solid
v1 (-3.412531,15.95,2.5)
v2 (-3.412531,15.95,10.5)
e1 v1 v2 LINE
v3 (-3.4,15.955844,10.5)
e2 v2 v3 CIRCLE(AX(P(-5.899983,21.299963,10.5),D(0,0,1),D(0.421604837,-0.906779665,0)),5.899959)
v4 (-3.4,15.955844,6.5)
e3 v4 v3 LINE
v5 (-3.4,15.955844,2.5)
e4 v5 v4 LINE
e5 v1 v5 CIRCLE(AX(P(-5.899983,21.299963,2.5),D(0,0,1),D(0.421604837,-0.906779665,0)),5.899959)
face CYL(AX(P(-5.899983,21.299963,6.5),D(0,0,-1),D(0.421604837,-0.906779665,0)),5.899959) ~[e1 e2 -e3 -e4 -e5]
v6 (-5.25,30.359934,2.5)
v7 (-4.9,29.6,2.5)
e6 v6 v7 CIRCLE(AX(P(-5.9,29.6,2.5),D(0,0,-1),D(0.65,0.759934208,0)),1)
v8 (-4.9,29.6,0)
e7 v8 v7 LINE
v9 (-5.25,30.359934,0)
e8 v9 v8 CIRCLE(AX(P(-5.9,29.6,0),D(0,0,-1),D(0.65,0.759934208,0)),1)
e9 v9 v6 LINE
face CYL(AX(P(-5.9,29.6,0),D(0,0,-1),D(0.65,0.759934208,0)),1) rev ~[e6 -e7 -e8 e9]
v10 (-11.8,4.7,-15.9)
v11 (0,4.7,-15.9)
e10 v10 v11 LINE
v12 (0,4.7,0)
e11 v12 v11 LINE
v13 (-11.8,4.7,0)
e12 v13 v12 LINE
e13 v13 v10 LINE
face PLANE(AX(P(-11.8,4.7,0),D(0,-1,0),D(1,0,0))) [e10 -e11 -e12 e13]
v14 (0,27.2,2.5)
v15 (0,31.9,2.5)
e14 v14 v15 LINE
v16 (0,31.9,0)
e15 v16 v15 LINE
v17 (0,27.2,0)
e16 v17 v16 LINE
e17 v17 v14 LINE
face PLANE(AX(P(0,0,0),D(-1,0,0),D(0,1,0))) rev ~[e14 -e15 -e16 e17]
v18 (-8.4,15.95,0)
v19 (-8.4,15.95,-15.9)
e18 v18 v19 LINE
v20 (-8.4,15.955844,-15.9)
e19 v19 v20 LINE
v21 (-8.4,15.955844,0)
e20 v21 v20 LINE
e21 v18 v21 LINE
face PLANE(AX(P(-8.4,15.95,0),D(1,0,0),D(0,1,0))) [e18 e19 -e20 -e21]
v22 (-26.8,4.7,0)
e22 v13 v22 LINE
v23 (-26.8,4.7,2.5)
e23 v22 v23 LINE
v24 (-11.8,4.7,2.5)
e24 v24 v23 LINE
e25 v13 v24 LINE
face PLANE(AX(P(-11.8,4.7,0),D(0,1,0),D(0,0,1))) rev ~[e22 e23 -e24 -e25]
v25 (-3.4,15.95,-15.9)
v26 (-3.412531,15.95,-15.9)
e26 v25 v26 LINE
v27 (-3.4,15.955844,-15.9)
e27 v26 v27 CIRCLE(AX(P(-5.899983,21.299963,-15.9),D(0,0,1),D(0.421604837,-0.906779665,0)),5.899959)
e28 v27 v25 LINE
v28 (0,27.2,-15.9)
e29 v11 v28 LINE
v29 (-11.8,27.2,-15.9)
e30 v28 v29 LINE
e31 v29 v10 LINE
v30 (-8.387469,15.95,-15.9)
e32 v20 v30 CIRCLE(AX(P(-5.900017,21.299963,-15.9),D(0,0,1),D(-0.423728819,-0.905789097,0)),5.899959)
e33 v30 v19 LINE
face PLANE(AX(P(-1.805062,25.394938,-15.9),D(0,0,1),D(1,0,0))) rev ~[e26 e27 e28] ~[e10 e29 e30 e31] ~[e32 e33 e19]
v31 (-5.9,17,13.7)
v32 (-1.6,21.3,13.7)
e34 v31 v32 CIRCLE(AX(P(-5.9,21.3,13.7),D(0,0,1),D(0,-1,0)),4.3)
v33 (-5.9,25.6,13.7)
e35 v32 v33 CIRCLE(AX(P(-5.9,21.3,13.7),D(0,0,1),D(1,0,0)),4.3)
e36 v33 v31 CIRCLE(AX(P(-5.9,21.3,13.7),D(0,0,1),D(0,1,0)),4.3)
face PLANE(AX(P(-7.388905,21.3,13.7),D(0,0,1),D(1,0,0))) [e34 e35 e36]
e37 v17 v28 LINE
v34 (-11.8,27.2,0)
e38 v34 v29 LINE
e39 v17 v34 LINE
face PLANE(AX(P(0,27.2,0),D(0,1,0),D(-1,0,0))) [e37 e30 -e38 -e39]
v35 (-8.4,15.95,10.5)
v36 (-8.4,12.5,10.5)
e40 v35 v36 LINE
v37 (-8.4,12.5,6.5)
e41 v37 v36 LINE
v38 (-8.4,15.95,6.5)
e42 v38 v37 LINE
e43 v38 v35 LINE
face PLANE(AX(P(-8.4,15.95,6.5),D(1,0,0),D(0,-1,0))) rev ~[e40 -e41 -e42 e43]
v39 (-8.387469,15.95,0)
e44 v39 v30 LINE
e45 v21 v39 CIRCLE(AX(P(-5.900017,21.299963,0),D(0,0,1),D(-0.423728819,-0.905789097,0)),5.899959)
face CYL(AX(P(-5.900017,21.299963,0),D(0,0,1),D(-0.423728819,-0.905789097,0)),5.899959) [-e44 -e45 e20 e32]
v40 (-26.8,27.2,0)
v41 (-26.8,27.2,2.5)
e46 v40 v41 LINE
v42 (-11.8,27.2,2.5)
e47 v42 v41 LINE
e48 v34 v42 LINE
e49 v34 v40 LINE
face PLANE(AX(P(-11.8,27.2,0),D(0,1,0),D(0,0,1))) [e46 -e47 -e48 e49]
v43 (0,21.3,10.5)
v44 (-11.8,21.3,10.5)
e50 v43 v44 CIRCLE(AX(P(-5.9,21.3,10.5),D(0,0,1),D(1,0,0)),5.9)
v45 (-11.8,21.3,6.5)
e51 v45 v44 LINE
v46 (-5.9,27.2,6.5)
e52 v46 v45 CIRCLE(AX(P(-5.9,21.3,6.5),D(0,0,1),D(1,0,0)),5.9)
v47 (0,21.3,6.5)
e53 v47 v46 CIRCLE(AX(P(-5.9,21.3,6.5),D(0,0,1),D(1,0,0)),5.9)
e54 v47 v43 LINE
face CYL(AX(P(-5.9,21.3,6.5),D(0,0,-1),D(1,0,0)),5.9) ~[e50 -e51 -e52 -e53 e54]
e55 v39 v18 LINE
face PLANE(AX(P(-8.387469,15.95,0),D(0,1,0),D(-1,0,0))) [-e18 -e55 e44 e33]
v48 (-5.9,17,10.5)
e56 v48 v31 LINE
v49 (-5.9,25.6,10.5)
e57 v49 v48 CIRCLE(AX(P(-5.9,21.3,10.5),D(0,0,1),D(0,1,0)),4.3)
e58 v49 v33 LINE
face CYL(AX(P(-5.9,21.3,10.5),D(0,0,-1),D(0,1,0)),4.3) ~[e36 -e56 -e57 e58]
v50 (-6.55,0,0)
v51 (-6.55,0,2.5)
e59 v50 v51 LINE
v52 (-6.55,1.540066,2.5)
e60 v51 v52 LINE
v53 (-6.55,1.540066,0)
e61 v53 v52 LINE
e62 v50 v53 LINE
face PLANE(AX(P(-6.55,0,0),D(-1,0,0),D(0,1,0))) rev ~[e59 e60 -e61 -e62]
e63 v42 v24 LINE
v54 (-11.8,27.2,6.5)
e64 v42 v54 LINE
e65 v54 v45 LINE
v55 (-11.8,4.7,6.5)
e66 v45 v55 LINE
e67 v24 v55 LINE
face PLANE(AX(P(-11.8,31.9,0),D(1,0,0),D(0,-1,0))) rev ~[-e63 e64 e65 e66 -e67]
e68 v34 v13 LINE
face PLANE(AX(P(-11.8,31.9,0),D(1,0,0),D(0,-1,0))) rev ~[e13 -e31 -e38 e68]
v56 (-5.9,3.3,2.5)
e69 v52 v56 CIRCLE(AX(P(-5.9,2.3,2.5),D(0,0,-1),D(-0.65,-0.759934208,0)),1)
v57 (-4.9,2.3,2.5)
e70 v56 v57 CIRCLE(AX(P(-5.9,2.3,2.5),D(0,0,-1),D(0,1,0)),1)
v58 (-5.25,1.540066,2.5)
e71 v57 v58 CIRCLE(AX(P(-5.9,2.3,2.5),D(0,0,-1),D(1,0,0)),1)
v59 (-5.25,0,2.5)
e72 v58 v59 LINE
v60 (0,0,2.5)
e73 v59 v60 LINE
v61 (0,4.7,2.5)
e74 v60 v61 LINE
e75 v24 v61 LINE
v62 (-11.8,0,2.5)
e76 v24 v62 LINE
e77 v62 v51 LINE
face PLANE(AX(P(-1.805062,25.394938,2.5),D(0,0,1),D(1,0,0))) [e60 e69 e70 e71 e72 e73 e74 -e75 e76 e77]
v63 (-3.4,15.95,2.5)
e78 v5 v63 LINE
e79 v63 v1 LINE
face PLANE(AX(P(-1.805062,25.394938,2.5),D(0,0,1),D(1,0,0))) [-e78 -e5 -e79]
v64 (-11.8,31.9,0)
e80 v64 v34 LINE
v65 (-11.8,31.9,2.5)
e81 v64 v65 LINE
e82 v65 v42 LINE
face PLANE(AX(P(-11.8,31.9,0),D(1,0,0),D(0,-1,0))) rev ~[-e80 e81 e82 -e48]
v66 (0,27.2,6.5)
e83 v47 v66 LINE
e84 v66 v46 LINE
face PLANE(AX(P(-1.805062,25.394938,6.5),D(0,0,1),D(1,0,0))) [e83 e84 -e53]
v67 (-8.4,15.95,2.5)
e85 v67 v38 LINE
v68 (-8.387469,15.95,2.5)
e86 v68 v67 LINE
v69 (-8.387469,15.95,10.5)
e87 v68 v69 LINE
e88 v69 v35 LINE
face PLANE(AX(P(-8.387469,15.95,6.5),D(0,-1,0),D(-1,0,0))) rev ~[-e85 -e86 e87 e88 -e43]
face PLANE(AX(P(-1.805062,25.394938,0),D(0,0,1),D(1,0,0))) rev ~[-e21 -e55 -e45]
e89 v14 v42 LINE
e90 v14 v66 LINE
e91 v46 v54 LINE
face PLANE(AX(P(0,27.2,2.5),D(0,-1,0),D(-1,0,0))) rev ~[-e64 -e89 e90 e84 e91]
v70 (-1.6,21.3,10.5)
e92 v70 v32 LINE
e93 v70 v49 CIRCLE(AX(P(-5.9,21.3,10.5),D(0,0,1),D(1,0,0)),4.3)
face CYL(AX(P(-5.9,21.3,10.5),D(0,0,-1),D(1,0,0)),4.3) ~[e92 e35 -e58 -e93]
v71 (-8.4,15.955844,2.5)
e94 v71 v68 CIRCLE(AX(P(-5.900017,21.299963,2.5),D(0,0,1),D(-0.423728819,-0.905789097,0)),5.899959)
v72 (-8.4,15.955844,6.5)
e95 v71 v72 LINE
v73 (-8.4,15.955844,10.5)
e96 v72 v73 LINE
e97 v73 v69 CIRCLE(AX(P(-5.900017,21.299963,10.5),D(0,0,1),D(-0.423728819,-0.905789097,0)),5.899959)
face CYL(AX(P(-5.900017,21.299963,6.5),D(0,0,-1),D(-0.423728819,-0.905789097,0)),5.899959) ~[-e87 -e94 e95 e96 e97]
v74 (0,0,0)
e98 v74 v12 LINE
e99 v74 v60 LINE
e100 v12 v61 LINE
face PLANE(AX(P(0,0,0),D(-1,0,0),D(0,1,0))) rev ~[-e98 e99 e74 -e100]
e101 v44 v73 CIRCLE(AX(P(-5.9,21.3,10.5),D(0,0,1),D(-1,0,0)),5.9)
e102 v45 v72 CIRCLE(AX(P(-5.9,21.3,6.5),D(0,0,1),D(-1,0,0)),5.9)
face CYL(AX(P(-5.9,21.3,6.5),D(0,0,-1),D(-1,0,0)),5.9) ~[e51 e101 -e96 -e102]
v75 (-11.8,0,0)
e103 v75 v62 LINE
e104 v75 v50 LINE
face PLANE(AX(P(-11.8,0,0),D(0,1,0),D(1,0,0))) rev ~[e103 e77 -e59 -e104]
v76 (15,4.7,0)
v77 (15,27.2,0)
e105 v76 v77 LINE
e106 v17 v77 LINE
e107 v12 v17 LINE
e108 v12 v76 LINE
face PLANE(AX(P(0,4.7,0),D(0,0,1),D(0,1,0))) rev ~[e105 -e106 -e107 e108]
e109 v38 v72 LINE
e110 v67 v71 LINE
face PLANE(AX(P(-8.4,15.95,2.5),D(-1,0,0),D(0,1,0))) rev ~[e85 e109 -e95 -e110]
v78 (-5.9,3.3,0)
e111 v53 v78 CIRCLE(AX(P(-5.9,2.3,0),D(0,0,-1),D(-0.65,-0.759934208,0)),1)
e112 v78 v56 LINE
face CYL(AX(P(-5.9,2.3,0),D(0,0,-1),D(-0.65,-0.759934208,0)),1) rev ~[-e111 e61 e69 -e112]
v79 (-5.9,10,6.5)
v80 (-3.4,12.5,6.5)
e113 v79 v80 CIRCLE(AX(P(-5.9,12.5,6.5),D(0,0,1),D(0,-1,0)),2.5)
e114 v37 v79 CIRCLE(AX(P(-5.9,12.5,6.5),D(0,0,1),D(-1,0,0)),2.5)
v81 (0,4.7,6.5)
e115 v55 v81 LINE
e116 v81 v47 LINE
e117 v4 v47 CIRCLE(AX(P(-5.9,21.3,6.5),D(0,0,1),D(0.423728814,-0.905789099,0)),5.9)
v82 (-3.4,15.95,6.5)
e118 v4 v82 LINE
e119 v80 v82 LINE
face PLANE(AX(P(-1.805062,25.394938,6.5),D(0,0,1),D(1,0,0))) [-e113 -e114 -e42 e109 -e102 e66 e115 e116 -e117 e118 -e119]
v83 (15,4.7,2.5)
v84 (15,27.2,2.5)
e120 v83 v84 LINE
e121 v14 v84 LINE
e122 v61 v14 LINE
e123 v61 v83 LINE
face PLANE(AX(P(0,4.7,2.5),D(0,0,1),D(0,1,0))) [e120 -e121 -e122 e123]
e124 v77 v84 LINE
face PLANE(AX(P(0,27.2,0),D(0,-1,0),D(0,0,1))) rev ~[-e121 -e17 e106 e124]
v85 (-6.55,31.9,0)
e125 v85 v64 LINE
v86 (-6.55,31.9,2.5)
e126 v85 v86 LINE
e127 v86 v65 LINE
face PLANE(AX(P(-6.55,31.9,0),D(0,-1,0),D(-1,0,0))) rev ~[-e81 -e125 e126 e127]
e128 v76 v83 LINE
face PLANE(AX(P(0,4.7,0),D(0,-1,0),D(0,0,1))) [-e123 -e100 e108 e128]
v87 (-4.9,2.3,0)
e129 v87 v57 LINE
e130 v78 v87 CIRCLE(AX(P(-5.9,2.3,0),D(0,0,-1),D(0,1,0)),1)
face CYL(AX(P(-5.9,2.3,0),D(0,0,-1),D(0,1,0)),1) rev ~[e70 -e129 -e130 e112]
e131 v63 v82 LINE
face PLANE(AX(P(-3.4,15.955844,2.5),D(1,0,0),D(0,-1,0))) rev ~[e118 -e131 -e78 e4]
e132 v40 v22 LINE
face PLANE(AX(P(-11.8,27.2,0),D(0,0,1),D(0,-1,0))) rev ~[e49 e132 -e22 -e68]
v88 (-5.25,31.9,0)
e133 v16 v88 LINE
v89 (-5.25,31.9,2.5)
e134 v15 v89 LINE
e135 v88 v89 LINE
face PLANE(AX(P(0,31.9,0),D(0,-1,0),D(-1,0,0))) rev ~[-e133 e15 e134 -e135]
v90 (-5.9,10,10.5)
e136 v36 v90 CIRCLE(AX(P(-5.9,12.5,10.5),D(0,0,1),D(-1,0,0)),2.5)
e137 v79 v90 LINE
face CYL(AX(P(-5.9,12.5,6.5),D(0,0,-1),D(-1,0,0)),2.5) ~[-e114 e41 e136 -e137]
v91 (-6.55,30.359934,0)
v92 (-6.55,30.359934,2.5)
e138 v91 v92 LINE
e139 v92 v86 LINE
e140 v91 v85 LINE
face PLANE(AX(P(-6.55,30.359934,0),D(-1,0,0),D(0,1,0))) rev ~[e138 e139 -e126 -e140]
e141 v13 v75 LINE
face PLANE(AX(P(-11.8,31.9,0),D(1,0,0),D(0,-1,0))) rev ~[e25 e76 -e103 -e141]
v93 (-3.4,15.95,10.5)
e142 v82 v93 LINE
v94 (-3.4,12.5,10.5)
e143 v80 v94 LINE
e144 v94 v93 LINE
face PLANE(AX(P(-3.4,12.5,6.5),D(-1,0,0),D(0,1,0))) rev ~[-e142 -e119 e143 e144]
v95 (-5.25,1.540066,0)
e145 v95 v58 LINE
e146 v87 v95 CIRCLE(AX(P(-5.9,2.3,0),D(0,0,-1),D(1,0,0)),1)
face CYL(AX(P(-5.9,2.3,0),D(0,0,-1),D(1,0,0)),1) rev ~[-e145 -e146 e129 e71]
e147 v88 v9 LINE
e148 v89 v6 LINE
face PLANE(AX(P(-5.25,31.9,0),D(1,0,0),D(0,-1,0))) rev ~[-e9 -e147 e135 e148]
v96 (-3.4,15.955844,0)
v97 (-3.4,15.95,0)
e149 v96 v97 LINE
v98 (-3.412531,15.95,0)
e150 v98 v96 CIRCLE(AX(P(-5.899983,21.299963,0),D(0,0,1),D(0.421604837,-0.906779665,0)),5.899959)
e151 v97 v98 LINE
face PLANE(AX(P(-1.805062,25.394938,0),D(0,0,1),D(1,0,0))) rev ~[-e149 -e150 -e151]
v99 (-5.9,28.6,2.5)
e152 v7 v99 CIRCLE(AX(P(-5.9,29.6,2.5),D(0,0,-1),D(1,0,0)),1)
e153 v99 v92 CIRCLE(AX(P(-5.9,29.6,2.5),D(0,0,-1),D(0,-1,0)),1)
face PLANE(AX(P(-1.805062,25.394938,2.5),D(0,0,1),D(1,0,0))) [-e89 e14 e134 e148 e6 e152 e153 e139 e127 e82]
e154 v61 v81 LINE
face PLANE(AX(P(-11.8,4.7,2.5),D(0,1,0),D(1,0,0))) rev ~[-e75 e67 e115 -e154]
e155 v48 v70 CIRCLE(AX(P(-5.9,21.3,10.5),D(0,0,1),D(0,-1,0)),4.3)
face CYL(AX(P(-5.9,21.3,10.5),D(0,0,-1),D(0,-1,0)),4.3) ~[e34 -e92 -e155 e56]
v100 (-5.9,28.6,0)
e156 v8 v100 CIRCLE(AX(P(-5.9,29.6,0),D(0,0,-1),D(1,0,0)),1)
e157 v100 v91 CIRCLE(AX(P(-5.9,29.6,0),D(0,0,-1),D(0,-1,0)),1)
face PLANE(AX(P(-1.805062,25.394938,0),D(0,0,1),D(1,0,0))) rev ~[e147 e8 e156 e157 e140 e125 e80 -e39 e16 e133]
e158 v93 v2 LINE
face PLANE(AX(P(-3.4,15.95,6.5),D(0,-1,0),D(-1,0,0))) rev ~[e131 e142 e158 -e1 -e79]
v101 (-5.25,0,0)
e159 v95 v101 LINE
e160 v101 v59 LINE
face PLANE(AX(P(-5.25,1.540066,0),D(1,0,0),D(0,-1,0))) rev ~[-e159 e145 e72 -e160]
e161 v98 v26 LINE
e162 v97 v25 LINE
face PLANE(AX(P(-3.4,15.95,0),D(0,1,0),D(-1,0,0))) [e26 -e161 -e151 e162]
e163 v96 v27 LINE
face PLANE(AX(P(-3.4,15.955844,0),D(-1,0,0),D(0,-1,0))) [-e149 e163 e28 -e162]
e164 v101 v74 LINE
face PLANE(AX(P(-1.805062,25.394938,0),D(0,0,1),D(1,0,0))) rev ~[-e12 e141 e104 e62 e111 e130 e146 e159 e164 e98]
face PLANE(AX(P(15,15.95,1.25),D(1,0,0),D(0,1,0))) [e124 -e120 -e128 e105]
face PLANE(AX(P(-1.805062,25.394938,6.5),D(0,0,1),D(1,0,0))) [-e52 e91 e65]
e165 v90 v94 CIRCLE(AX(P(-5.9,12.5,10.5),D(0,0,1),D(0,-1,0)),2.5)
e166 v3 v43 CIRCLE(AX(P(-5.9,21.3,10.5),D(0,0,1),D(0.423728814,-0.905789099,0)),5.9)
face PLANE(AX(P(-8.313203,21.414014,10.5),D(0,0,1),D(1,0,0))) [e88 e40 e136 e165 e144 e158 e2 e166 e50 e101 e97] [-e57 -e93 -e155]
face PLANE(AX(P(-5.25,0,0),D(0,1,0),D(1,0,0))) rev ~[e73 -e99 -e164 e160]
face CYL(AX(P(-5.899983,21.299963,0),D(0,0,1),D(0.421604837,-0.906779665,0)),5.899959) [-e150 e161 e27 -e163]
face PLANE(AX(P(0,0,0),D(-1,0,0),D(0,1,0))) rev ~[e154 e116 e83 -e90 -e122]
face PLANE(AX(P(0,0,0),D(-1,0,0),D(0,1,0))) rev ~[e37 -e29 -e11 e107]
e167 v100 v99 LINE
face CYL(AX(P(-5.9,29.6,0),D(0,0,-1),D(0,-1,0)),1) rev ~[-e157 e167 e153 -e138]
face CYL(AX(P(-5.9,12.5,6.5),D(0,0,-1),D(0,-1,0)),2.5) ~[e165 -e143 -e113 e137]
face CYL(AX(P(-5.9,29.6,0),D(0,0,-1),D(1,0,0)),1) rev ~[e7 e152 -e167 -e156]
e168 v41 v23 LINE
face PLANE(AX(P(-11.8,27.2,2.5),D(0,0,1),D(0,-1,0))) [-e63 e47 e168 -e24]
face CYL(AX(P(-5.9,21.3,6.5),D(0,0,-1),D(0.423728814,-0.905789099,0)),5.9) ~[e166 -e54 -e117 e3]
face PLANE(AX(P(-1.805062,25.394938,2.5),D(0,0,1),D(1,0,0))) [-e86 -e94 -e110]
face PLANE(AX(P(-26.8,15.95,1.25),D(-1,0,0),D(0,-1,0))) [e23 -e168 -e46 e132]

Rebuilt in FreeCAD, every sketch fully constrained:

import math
import FreeCAD as App
import Part
import Sketcher


def add_polygon(sketch, points):
    """Adds a closed chain of lines whose ends are joined by coincident constraints."""
    first, n = sketch.GeometryCount, len(points)
    for a, b in zip(points, points[1:] + points[:1]):
        sketch.addGeometry(Part.LineSegment(App.Vector(*a, 0), App.Vector(*b, 0)), False)
    for i in range(n):
        sketch.addConstraint(Sketcher.Constraint("Coincident", first + i, 2, first + (i + 1) % n, 1))

doc = App.newDocument("Part")
body = doc.addObject("PartDesign::Body", "Body")

sketch1 = body.newObject("Sketcher::SketchObject", "Sketch")
sketch1.AttachmentSupport = (doc.getObject("XY_Plane"), [""])
sketch1.MapMode = "FlatFace"
add_polygon(sketch1, [(-11.8, 4.7), (0, 4.7), (0, 27.2), (-11.8, 27.2)])
sketch1.addGeometry(Part.ArcOfCircle(Part.Circle(App.Vector(-5.900017, 21.299963, 0), App.Vector(0, 0, 1), 5.899959), math.radians(-115.070228), math.radians(-114.935949)), False)
sketch1.addGeometry(Part.LineSegment(App.Vector(-8.387469, 15.95, 0), App.Vector(-8.4, 15.95, 0)), False)
sketch1.addGeometry(Part.LineSegment(App.Vector(-8.4, 15.95, 0), App.Vector(-8.4, 15.955844, 0)), False)
sketch1.addGeometry(Part.LineSegment(App.Vector(-3.4, 15.95, 0), App.Vector(-3.412531, 15.95, 0)), False)
sketch1.addGeometry(Part.ArcOfCircle(Part.Circle(App.Vector(-5.899983, 21.299963, 0), App.Vector(0, 0, 1), 5.899959), math.radians(-65.064051), math.radians(-64.929772)), False)
sketch1.addGeometry(Part.LineSegment(App.Vector(-3.4, 15.955844, 0), App.Vector(-3.4, 15.95, 0)), False)
sketch1.addConstraint(Sketcher.Constraint("Coincident", 4, 2, 5, 1))
sketch1.addConstraint(Sketcher.Constraint("Coincident", 5, 2, 6, 1))
sketch1.addConstraint(Sketcher.Constraint("Coincident", 6, 2, 4, 1))
sketch1.addConstraint(Sketcher.Constraint("Coincident", 7, 2, 8, 1))
sketch1.addConstraint(Sketcher.Constraint("Coincident", 8, 2, 9, 1))
sketch1.addConstraint(Sketcher.Constraint("Coincident", 9, 2, 7, 1))
sketch1.addConstraint(Sketcher.Constraint("Horizontal", 0))
sketch1.addConstraint(Sketcher.Constraint("Vertical", 1))
sketch1.addConstraint(Sketcher.Constraint("Horizontal", 2))
sketch1.addConstraint(Sketcher.Constraint("Vertical", 3))
sketch1.addConstraint(Sketcher.Constraint("Horizontal", 5))
sketch1.addConstraint(Sketcher.Constraint("Vertical", 6))
sketch1.addConstraint(Sketcher.Constraint("Horizontal", 7))
sketch1.addConstraint(Sketcher.Constraint("Vertical", 9))
sketch1.addConstraint(Sketcher.Constraint("Equal", 4, 8))
sketch1.addConstraint(Sketcher.Constraint("PointOnObject", 0, 2, -2))
sketch1.addConstraint(Sketcher.Constraint("Horizontal", 4, 3, 8, 3))
sketch1.addConstraint(Sketcher.Constraint("Horizontal", 5, 2, 7, 2))
sketch1.addConstraint(Sketcher.Constraint("Horizontal", 6, 2, 8, 2))
sketch1.addConstraint(Sketcher.Constraint("DistanceX", 0, 1, 0, 2, 11.8))
sketch1.addConstraint(Sketcher.Constraint("DistanceY", 1, 1, 1, 2, 22.5))
sketch1.addConstraint(Sketcher.Constraint("DistanceX", 6, 2, 8, 2, 5.0))
sketch1.addConstraint(Sketcher.Constraint("DistanceY", -1, 1, 0, 2, 4.7))
sketch1.addConstraint(Sketcher.Constraint("DistanceX", 5, 2, -1, 1, 8.4))
sketch1.addConstraint(Sketcher.Constraint("DistanceY", -1, 1, 4, 2, 15.95))
sketch1.addConstraint(Sketcher.Constraint("Radius", 4, 5.899959))
sketch1.addConstraint(Sketcher.Constraint("DistanceX", 5, 2, 5, 1, 0.012531))
sketch1.addConstraint(Sketcher.Constraint("DistanceX", 4, 2, 4, 3, 2.487451))
pad1 = body.newObject("PartDesign::Pad", "Pad")
pad1.Profile = sketch1
pad1.Length = 15.9
pad1.Reversed = True

sketch2 = body.newObject("Sketcher::SketchObject", "Sketch001")
sketch2.AttachmentSupport = (doc.getObject("XY_Plane"), [""])
sketch2.MapMode = "FlatFace"
sketch2.addGeometry(Part.LineSegment(App.Vector(-11.8, 31.9, 0), App.Vector(-11.8, 0, 0)), False)
sketch2.addGeometry(Part.LineSegment(App.Vector(-11.8, 0, 0), App.Vector(-6.55, 0, 0)), False)
sketch2.addGeometry(Part.LineSegment(App.Vector(-6.55, 0, 0), App.Vector(-6.55, 1.540066, 0)), False)
sketch2.addGeometry(Part.ArcOfCircle(Part.Circle(App.Vector(-5.9, 2.3, 0), App.Vector(0, 0, 1), 1), math.radians(90), math.radians(229.458398)), False)
sketch2.addGeometry(Part.ArcOfCircle(Part.Circle(App.Vector(-5.9, 2.3, 0), App.Vector(0, 0, 1), 1), math.radians(0), math.radians(90)), False)
sketch2.addGeometry(Part.ArcOfCircle(Part.Circle(App.Vector(-5.9, 2.3, 0), App.Vector(0, 0, 1), 1), math.radians(-49.458398), math.radians(0)), False)
sketch2.addGeometry(Part.LineSegment(App.Vector(-5.25, 1.540066, 0), App.Vector(-5.25, 0, 0)), False)
sketch2.addGeometry(Part.LineSegment(App.Vector(-5.25, 0, 0), App.Vector(0, 0, 0)), False)
sketch2.addGeometry(Part.LineSegment(App.Vector(0, 0, 0), App.Vector(0, 31.9, 0)), False)
sketch2.addGeometry(Part.LineSegment(App.Vector(0, 31.9, 0), App.Vector(-5.25, 31.9, 0)), False)
sketch2.addGeometry(Part.LineSegment(App.Vector(-5.25, 31.9, 0), App.Vector(-5.25, 30.359934, 0)), False)
sketch2.addGeometry(Part.ArcOfCircle(Part.Circle(App.Vector(-5.9, 29.6, 0), App.Vector(0, 0, 1), 1), math.radians(0), math.radians(49.458398)), False)
sketch2.addGeometry(Part.ArcOfCircle(Part.Circle(App.Vector(-5.9, 29.6, 0), App.Vector(0, 0, 1), 1), math.radians(-90), math.radians(0)), False)
sketch2.addGeometry(Part.ArcOfCircle(Part.Circle(App.Vector(-5.9, 29.6, 0), App.Vector(0, 0, 1), 1), math.radians(130.541602), math.radians(270)), False)
sketch2.addGeometry(Part.LineSegment(App.Vector(-6.55, 30.359934, 0), App.Vector(-6.55, 31.9, 0)), False)
sketch2.addGeometry(Part.LineSegment(App.Vector(-6.55, 31.9, 0), App.Vector(-11.8, 31.9, 0)), False)
sketch2.addConstraint(Sketcher.Constraint("Coincident", 0, 2, 1, 1))
sketch2.addConstraint(Sketcher.Constraint("Coincident", 1, 2, 2, 1))
sketch2.addConstraint(Sketcher.Constraint("Coincident", 2, 2, 3, 2))
sketch2.addConstraint(Sketcher.Constraint("Tangent", 3, 1, 4, 2))
sketch2.addConstraint(Sketcher.Constraint("Tangent", 4, 1, 5, 2))
sketch2.addConstraint(Sketcher.Constraint("Coincident", 5, 1, 6, 1))
sketch2.addConstraint(Sketcher.Constraint("Coincident", 6, 2, 7, 1))
sketch2.addConstraint(Sketcher.Constraint("Coincident", 7, 2, 8, 1))
sketch2.addConstraint(Sketcher.Constraint("Coincident", 8, 2, 9, 1))
sketch2.addConstraint(Sketcher.Constraint("Coincident", 9, 2, 10, 1))
sketch2.addConstraint(Sketcher.Constraint("Coincident", 10, 2, 11, 2))
sketch2.addConstraint(Sketcher.Constraint("Tangent", 11, 1, 12, 2))
sketch2.addConstraint(Sketcher.Constraint("Tangent", 12, 1, 13, 2))
sketch2.addConstraint(Sketcher.Constraint("Coincident", 13, 1, 14, 1))
sketch2.addConstraint(Sketcher.Constraint("Coincident", 14, 2, 15, 1))
sketch2.addConstraint(Sketcher.Constraint("Coincident", 15, 2, 0, 1))
sketch2.addConstraint(Sketcher.Constraint("Vertical", 0))
sketch2.addConstraint(Sketcher.Constraint("Horizontal", 1))
sketch2.addConstraint(Sketcher.Constraint("Vertical", 2))
sketch2.addConstraint(Sketcher.Constraint("Vertical", 6))
sketch2.addConstraint(Sketcher.Constraint("Horizontal", 7))
sketch2.addConstraint(Sketcher.Constraint("Vertical", 8))
sketch2.addConstraint(Sketcher.Constraint("Horizontal", 9))
sketch2.addConstraint(Sketcher.Constraint("Vertical", 10))
sketch2.addConstraint(Sketcher.Constraint("Vertical", 14))
sketch2.addConstraint(Sketcher.Constraint("Horizontal", 15))
sketch2.addConstraint(Sketcher.Constraint("Coincident", 7, 2, -1, 1))
sketch2.addConstraint(Sketcher.Constraint("Coincident", 5, 3, 3, 3))
sketch2.addConstraint(Sketcher.Constraint("Coincident", 13, 3, 11, 3))
sketch2.addConstraint(Sketcher.Constraint("Equal", 5, 11))
sketch2.addConstraint(Sketcher.Constraint("PointOnObject", 0, 2, -1))
sketch2.addConstraint(Sketcher.Constraint("Horizontal", 5, 3, 4, 1))
sketch2.addConstraint(Sketcher.Constraint("Horizontal", 2, 2, 5, 1))
sketch2.addConstraint(Sketcher.Constraint("Horizontal", 13, 3, 11, 1))
sketch2.addConstraint(Sketcher.Constraint("Horizontal", 10, 2, 13, 1))
sketch2.addConstraint(Sketcher.Constraint("Horizontal", 9, 2, 14, 2))
sketch2.addConstraint(Sketcher.Constraint("Vertical", 5, 3, 11, 3))
sketch2.addConstraint(Sketcher.Constraint("Vertical", 13, 3, 3, 1))
sketch2.addConstraint(Sketcher.Constraint("Vertical", 6, 2, 9, 2))
sketch2.addConstraint(Sketcher.Constraint("Vertical", 3, 1, 12, 1))
sketch2.addConstraint(Sketcher.Constraint("Equal", 1, 7))
sketch2.addConstraint(Sketcher.Constraint("Equal", 6, 10))
sketch2.addConstraint(Sketcher.Constraint("Radius", 3, 1.0))
sketch2.addConstraint(Sketcher.Constraint("DistanceY", 0, 2, 0, 1, 31.9))
sketch2.addConstraint(Sketcher.Constraint("DistanceX", 1, 1, 1, 2, 5.25))
sketch2.addConstraint(Sketcher.Constraint("DistanceX", 3, 3, -1, 1, 5.9))
sketch2.addConstraint(Sketcher.Constraint("DistanceY", -1, 1, 3, 3, 2.3))
pad2 = body.newObject("PartDesign::Pad", "Pad001")
pad2.Profile = sketch2
pad2.Length = 2.5

sketch3 = body.newObject("Sketcher::SketchObject", "Sketch002")
sketch3.AttachmentSupport = (doc.getObject("XY_Plane"), [""])
sketch3.MapMode = "FlatFace"
sketch3.AttachmentOffset = App.Placement(App.Vector(0, 0, 2.5), App.Rotation())
add_polygon(sketch3, [(0, 27.2), (-11.8, 27.2), (-11.8, 4.7), (0, 4.7)])
sketch3.addGeometry(Part.ArcOfCircle(Part.Circle(App.Vector(-5.900017, 21.299963, 0), App.Vector(0, 0, 1), 5.899959), math.radians(-115.070228), math.radians(-114.935949)), False)
sketch3.addGeometry(Part.LineSegment(App.Vector(-8.387469, 15.95, 0), App.Vector(-8.4, 15.95, 0)), False)
sketch3.addGeometry(Part.LineSegment(App.Vector(-8.4, 15.95, 0), App.Vector(-8.4, 15.955844, 0)), False)
sketch3.addGeometry(Part.LineSegment(App.Vector(-3.4, 15.95, 0), App.Vector(-3.412531, 15.95, 0)), False)
sketch3.addGeometry(Part.ArcOfCircle(Part.Circle(App.Vector(-5.899983, 21.299963, 0), App.Vector(0, 0, 1), 5.899959), math.radians(-65.064051), math.radians(-64.929772)), False)
sketch3.addGeometry(Part.LineSegment(App.Vector(-3.4, 15.955844, 0), App.Vector(-3.4, 15.95, 0)), False)
sketch3.addConstraint(Sketcher.Constraint("Coincident", 4, 2, 5, 1))
sketch3.addConstraint(Sketcher.Constraint("Coincident", 5, 2, 6, 1))
sketch3.addConstraint(Sketcher.Constraint("Coincident", 6, 2, 4, 1))
sketch3.addConstraint(Sketcher.Constraint("Coincident", 7, 2, 8, 1))
sketch3.addConstraint(Sketcher.Constraint("Coincident", 8, 2, 9, 1))
sketch3.addConstraint(Sketcher.Constraint("Coincident", 9, 2, 7, 1))
sketch3.addConstraint(Sketcher.Constraint("Horizontal", 0))
sketch3.addConstraint(Sketcher.Constraint("Vertical", 1))
sketch3.addConstraint(Sketcher.Constraint("Horizontal", 2))
sketch3.addConstraint(Sketcher.Constraint("Vertical", 3))
sketch3.addConstraint(Sketcher.Constraint("Horizontal", 5))
sketch3.addConstraint(Sketcher.Constraint("Vertical", 6))
sketch3.addConstraint(Sketcher.Constraint("Horizontal", 7))
sketch3.addConstraint(Sketcher.Constraint("Vertical", 9))
sketch3.addConstraint(Sketcher.Constraint("Equal", 4, 8))
sketch3.addConstraint(Sketcher.Constraint("PointOnObject", 2, 2, -2))
sketch3.addConstraint(Sketcher.Constraint("Horizontal", 4, 3, 8, 3))
sketch3.addConstraint(Sketcher.Constraint("Horizontal", 5, 2, 7, 2))
sketch3.addConstraint(Sketcher.Constraint("Horizontal", 6, 2, 8, 2))
sketch3.addConstraint(Sketcher.Constraint("DistanceX", 0, 2, 0, 1, 11.8))
sketch3.addConstraint(Sketcher.Constraint("DistanceY", 1, 2, 1, 1, 22.5))
sketch3.addConstraint(Sketcher.Constraint("DistanceX", 6, 2, 8, 2, 5.0))
sketch3.addConstraint(Sketcher.Constraint("DistanceY", -1, 1, 0, 2, 27.2))
sketch3.addConstraint(Sketcher.Constraint("DistanceX", 5, 2, -1, 1, 8.4))
sketch3.addConstraint(Sketcher.Constraint("DistanceY", -1, 1, 4, 2, 15.95))
sketch3.addConstraint(Sketcher.Constraint("Radius", 4, 5.899959))
sketch3.addConstraint(Sketcher.Constraint("DistanceX", 5, 2, 5, 1, 0.012531))
sketch3.addConstraint(Sketcher.Constraint("DistanceX", 4, 2, 4, 3, 2.487451))
pad3 = body.newObject("PartDesign::Pad", "Pad002")
pad3.Profile = sketch3
pad3.Length = 4

sketch4 = body.newObject("Sketcher::SketchObject", "Sketch003")
sketch4.AttachmentSupport = (doc.getObject("XY_Plane"), [""])
sketch4.MapMode = "FlatFace"
sketch4.AttachmentOffset = App.Placement(App.Vector(0, 0, 6.5), App.Rotation())
sketch4.addGeometry(Part.ArcOfCircle(Part.Circle(App.Vector(-5.9, 21.3, 0), App.Vector(0, 0, 1), 5.9), math.radians(180), math.radians(244.929772)), False)
sketch4.addGeometry(Part.ArcOfCircle(Part.Circle(App.Vector(-5.900017, 21.299963, 0), App.Vector(0, 0, 1), 5.899959), math.radians(-115.070228), math.radians(-114.935949)), False)
sketch4.addGeometry(Part.LineSegment(App.Vector(-8.387469, 15.95, 0), App.Vector(-8.4, 15.95, 0)), False)
sketch4.addGeometry(Part.LineSegment(App.Vector(-8.4, 15.95, 0), App.Vector(-8.4, 12.5, 0)), False)
sketch4.addGeometry(Part.ArcOfCircle(Part.Circle(App.Vector(-5.9, 12.5, 0), App.Vector(0, 0, 1), 2.5), math.radians(180), math.radians(270)), False)
sketch4.addGeometry(Part.ArcOfCircle(Part.Circle(App.Vector(-5.9, 12.5, 0), App.Vector(0, 0, 1), 2.5), math.radians(-90), math.radians(0)), False)
sketch4.addGeometry(Part.LineSegment(App.Vector(-3.4, 12.5, 0), App.Vector(-3.4, 15.95, 0)), False)
sketch4.addGeometry(Part.LineSegment(App.Vector(-3.4, 15.95, 0), App.Vector(-3.412531, 15.95, 0)), False)
sketch4.addGeometry(Part.ArcOfCircle(Part.Circle(App.Vector(-5.899983, 21.299963, 0), App.Vector(0, 0, 1), 5.899959), math.radians(-65.064051), math.radians(-64.929772)), False)
sketch4.addGeometry(Part.ArcOfCircle(Part.Circle(App.Vector(-5.9, 21.3, 0), App.Vector(0, 0, 1), 5.9), math.radians(-64.929772), math.radians(0)), False)
sketch4.addGeometry(Part.ArcOfCircle(Part.Circle(App.Vector(-5.9, 21.3, 0), App.Vector(0, 0, 1), 5.9), math.radians(0), math.radians(180)), False)
sketch4.addConstraint(Sketcher.Constraint("Tangent", 0, 2, 1, 1))
sketch4.addConstraint(Sketcher.Constraint("Coincident", 1, 2, 2, 1))
sketch4.addConstraint(Sketcher.Constraint("Coincident", 2, 2, 3, 1))
sketch4.addConstraint(Sketcher.Constraint("Tangent", 3, 2, 4, 1))
sketch4.addConstraint(Sketcher.Constraint("Tangent", 4, 2, 5, 1))
sketch4.addConstraint(Sketcher.Constraint("Tangent", 5, 2, 6, 1))
sketch4.addConstraint(Sketcher.Constraint("Coincident", 6, 2, 7, 1))
sketch4.addConstraint(Sketcher.Constraint("Coincident", 7, 2, 8, 1))
sketch4.addConstraint(Sketcher.Constraint("Tangent", 8, 2, 9, 1))
sketch4.addConstraint(Sketcher.Constraint("Tangent", 9, 2, 10, 1))
sketch4.addConstraint(Sketcher.Constraint("Tangent", 10, 2, 0, 1))
sketch4.addConstraint(Sketcher.Constraint("Horizontal", 2))
sketch4.addConstraint(Sketcher.Constraint("Vertical", 3))
sketch4.addConstraint(Sketcher.Constraint("Vertical", 6))
sketch4.addConstraint(Sketcher.Constraint("Horizontal", 7))
sketch4.addConstraint(Sketcher.Constraint("Equal", 4, 5))
sketch4.addConstraint(Sketcher.Constraint("Equal", 1, 8))
sketch4.addConstraint(Sketcher.Constraint("Equal", 0, 9))
sketch4.addConstraint(Sketcher.Constraint("Equal", 9, 10))
sketch4.addConstraint(Sketcher.Constraint("PointOnObject", 9, 2, -2))
sketch4.addConstraint(Sketcher.Constraint("Horizontal", 2, 2, 6, 2))
sketch4.addConstraint(Sketcher.Constraint("Horizontal", 0, 2, 8, 2))
sketch4.addConstraint(Sketcher.Constraint("Horizontal", 10, 3, 9, 2))
sketch4.addConstraint(Sketcher.Constraint("Horizontal", 9, 2, 10, 2))
sketch4.addConstraint(Sketcher.Constraint("Vertical", 0, 3, 4, 3))
sketch4.addConstraint(Sketcher.Constraint("Vertical", 0, 2, 2, 2))
sketch4.addConstraint(Sketcher.Constraint("Vertical", 10, 3, 4, 2))
sketch4.addConstraint(Sketcher.Constraint("Radius", 0, 5.9))
sketch4.addConstraint(Sketcher.Constraint("Radius", 4, 2.5))
sketch4.addConstraint(Sketcher.Constraint("DistanceY", -1, 1, 4, 2, 10.0))
sketch4.addConstraint(Sketcher.Constraint("DistanceY", 3, 2, 3, 1, 3.45))
sketch4.addConstraint(Sketcher.Constraint("DistanceY", -1, 1, 0, 3, 21.3))
sketch4.addConstraint(Sketcher.Constraint("Radius", 1, 5.899959))
pad4 = body.newObject("PartDesign::Pad", "Pad003")
pad4.Profile = sketch4
pad4.Length = 4

sketch5 = body.newObject("Sketcher::SketchObject", "Sketch004")
sketch5.AttachmentSupport = (doc.getObject("XY_Plane"), [""])
sketch5.MapMode = "FlatFace"
sketch5.AttachmentOffset = App.Placement(App.Vector(0, 0, 10.5), App.Rotation())
sketch5.addGeometry(Part.ArcOfCircle(Part.Circle(App.Vector(-5.9, 21.3, 0), App.Vector(0, 0, 1), 4.3), math.radians(90), math.radians(270)), False)
sketch5.addGeometry(Part.ArcOfCircle(Part.Circle(App.Vector(-5.9, 21.3, 0), App.Vector(0, 0, 1), 4.3), math.radians(-90), math.radians(0)), False)
sketch5.addGeometry(Part.ArcOfCircle(Part.Circle(App.Vector(-5.9, 21.3, 0), App.Vector(0, 0, 1), 4.3), math.radians(0), math.radians(90)), False)
sketch5.addConstraint(Sketcher.Constraint("Tangent", 0, 2, 1, 1))
sketch5.addConstraint(Sketcher.Constraint("Tangent", 1, 2, 2, 1))
sketch5.addConstraint(Sketcher.Constraint("Tangent", 2, 2, 0, 1))
sketch5.addConstraint(Sketcher.Constraint("Horizontal", 2, 3, 1, 2))
sketch5.addConstraint(Sketcher.Constraint("Vertical", 2, 3, 0, 2))
sketch5.addConstraint(Sketcher.Constraint("Vertical", 0, 2, 2, 2))
sketch5.addConstraint(Sketcher.Constraint("Radius", 0, 4.3))
sketch5.addConstraint(Sketcher.Constraint("DistanceY", -1, 1, 0, 2, 17.0))
sketch5.addConstraint(Sketcher.Constraint("DistanceX", 0, 3, -1, 1, 5.9))
pad5 = body.newObject("PartDesign::Pad", "Pad004")
pad5.Profile = sketch5
pad5.Length = 3.2

sketch6 = body.newObject("Sketcher::SketchObject", "Sketch005")
sketch6.AttachmentSupport = (doc.getObject("YZ_Plane"), [""])
sketch6.MapMode = "FlatFace"
add_polygon(sketch6, [(4.7, 2.5), (4.7, 0), (27.2, 0), (27.2, 2.5)])
sketch6.addConstraint(Sketcher.Constraint("Vertical", 0))
sketch6.addConstraint(Sketcher.Constraint("Horizontal", 1))
sketch6.addConstraint(Sketcher.Constraint("Vertical", 2))
sketch6.addConstraint(Sketcher.Constraint("Horizontal", 3))
sketch6.addConstraint(Sketcher.Constraint("PointOnObject", 0, 2, -1))
sketch6.addConstraint(Sketcher.Constraint("DistanceX", 1, 1, 1, 2, 22.5))
sketch6.addConstraint(Sketcher.Constraint("DistanceY", 0, 2, 0, 1, 2.5))
sketch6.addConstraint(Sketcher.Constraint("DistanceX", -1, 1, 0, 2, 4.7))
pad6 = body.newObject("PartDesign::Pad", "Pad005")
pad6.Profile = sketch6
pad6.Length = 15

sketch7 = body.newObject("Sketcher::SketchObject", "Sketch006")
sketch7.AttachmentSupport = (doc.getObject("YZ_Plane"), [""])
sketch7.MapMode = "FlatFace"
sketch7.AttachmentOffset = App.Placement(App.Vector(0, 0, -11.8), App.Rotation())
add_polygon(sketch7, [(27.2, 2.5), (27.2, 0), (4.7, 0), (4.7, 2.5)])
sketch7.addConstraint(Sketcher.Constraint("Vertical", 0))
sketch7.addConstraint(Sketcher.Constraint("Horizontal", 1))
sketch7.addConstraint(Sketcher.Constraint("Vertical", 2))
sketch7.addConstraint(Sketcher.Constraint("Horizontal", 3))
sketch7.addConstraint(Sketcher.Constraint("PointOnObject", 0, 2, -1))
sketch7.addConstraint(Sketcher.Constraint("DistanceX", 1, 2, 1, 1, 22.5))
sketch7.addConstraint(Sketcher.Constraint("DistanceY", 0, 2, 0, 1, 2.5))
sketch7.addConstraint(Sketcher.Constraint("DistanceX", -1, 1, 0, 2, 27.2))
pad7 = body.newObject("PartDesign::Pad", "Pad006")
pad7.Profile = sketch7
pad7.Length = 15
pad7.Reversed = True

doc.recompute()
